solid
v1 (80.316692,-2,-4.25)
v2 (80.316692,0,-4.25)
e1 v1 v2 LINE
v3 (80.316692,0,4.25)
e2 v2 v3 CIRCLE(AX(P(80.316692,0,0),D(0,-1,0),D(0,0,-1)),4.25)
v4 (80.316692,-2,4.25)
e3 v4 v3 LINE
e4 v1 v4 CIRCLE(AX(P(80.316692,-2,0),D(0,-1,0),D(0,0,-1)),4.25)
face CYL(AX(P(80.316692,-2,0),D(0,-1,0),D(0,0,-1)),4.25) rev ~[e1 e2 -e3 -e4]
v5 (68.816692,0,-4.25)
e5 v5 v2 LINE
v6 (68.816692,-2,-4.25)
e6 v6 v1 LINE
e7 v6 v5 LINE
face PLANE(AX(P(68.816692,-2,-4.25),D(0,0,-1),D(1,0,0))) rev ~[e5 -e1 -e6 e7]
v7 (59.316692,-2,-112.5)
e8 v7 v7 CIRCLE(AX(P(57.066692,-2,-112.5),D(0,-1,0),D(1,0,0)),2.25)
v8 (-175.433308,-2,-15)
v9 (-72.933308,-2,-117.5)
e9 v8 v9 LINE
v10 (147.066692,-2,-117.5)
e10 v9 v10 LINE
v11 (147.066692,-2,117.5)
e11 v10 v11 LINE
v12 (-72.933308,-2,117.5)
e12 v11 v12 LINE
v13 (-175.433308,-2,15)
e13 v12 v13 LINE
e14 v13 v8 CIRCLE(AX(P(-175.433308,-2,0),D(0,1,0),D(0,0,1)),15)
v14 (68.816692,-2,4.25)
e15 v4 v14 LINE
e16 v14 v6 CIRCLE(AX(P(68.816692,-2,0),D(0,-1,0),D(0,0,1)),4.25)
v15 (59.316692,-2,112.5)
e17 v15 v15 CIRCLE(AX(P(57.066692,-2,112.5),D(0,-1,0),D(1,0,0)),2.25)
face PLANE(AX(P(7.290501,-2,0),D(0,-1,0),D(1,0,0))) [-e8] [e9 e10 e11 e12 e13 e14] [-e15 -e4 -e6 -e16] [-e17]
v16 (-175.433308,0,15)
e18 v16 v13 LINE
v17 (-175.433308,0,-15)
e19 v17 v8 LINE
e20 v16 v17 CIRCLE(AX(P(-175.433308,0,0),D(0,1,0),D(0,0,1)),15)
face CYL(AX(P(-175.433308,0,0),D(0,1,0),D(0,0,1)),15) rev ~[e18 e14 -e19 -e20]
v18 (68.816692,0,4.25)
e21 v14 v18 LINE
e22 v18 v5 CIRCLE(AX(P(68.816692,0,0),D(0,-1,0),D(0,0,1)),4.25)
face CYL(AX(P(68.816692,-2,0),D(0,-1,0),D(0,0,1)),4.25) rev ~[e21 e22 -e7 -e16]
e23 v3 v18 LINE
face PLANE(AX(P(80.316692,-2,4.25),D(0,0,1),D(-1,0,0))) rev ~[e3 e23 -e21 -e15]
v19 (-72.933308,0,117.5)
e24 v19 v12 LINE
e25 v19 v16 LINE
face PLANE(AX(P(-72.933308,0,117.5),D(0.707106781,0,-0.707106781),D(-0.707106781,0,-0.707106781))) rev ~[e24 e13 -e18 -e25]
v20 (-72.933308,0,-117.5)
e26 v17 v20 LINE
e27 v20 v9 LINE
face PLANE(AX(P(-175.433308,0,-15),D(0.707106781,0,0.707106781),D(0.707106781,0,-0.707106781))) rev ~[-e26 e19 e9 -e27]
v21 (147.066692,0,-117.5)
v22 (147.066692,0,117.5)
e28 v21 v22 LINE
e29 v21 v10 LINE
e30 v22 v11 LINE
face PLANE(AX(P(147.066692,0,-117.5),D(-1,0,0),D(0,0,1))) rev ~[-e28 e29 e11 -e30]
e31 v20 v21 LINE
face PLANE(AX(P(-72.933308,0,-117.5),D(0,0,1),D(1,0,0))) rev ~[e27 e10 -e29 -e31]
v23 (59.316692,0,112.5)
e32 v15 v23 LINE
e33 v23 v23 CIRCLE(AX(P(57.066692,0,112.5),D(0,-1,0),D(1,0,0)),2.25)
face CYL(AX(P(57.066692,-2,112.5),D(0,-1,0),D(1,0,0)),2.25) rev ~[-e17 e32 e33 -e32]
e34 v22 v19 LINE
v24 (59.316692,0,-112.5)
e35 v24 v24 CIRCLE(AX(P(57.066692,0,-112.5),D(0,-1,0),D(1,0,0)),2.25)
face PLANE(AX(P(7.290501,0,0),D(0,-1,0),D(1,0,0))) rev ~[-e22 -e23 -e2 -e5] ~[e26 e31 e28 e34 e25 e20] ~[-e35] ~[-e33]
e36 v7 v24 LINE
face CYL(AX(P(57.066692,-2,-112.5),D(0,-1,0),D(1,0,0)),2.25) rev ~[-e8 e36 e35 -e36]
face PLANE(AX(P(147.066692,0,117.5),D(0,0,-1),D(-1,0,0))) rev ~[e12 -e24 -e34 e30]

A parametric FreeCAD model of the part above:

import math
import FreeCAD as App
import Part
import Sketcher
Q = App.Units.Quantity

doc = App.newDocument("Part")
body = doc.addObject("PartDesign::Body", "Body")

# Sketch on XZ plane
sketch1 = body.newObject("Sketcher::SketchObject", "Sketch")
sketch1.AttachmentSupport = (doc.getObject("XZ_Plane"), [""])
sketch1.MapMode = "FlatFace"
sketch1.addGeometry([
    Part.LineSegment(App.Vector(-72.933308, -117.5, 0), App.Vector(147.066692, -117.5, 0)),  # 0
    Part.LineSegment(App.Vector(147.066692, -117.5, 0), App.Vector(147.066692, 117.5, 0)),  # 1
    Part.LineSegment(App.Vector(147.066692, 117.5, 0), App.Vector(-72.933308, 117.5, 0)),  # 2
    Part.LineSegment(App.Vector(-72.933308, 117.5, 0), App.Vector(-175.433308, 15, 0)),  # 3
    Part.ArcOfCircle(Part.Circle(App.Vector(-175.433308, 0, 0), App.Vector(0, 0, 1), 15), math.radians(-90), math.radians(90)),  # 4
    Part.LineSegment(App.Vector(-175.433308, -15, 0), App.Vector(-72.933308, -117.5, 0)),  # 5
], False)
sketch1.addConstraint([
    Sketcher.Constraint("Coincident", 0, 2, 1, 1),
    Sketcher.Constraint("Coincident", 1, 2, 2, 1),
    Sketcher.Constraint("Coincident", 2, 2, 3, 1),
    Sketcher.Constraint("Coincident", 3, 2, 4, 2),
    Sketcher.Constraint("Coincident", 4, 1, 5, 1),
    Sketcher.Constraint("Coincident", 5, 2, 0, 1),
    Sketcher.Constraint("Horizontal", 0),
    Sketcher.Constraint("Vertical", 1),
    Sketcher.Constraint("Horizontal", 2),
    Sketcher.Constraint("Symmetric", 3, 2, 4, 1, -1),
    Sketcher.Constraint("Symmetric", 2, 2, 5, 2, -1),
    Sketcher.Constraint("Perpendicular", 3, 5),
    Sketcher.Constraint("Vertical", 4, 3, 3, 2),
    Sketcher.Constraint("Radius", 4, Q("15 mm")),
    Sketcher.Constraint("DistanceX", 0, 1, 0, 2, Q("220 mm")),
    Sketcher.Constraint("DistanceY", 1, 1, 1, 2, Q("235 mm")),
    Sketcher.Constraint("DistanceX", 4, 3, -1, 1, Q("175.433308 mm")),
])
pad1 = body.newObject("PartDesign::Pad", "Pad")
pad1.Profile = sketch1
pad1.Length = 2

# Sketch on XZ plane
sketch2 = body.newObject("Sketcher::SketchObject", "Sketch001")
sketch2.AttachmentSupport = (doc.getObject("XZ_Plane"), [""])
sketch2.MapMode = "FlatFace"
sketch2.AttachmentOffset = App.Placement(App.Vector(0, 0, 2), App.Rotation())
sketch2.addGeometry([
    Part.LineSegment(App.Vector(68.816692, -4.25, 0), App.Vector(80.316692, -4.25, 0)),  # 0
    Part.ArcOfCircle(Part.Circle(App.Vector(80.316692, 0, 0), App.Vector(0, 0, 1), 4.25), math.radians(-90), math.radians(90)),  # 1
    Part.LineSegment(App.Vector(80.316692, 4.25, 0), App.Vector(68.816692, 4.25, 0)),  # 2
    Part.ArcOfCircle(Part.Circle(App.Vector(68.816692, 0, 0), App.Vector(0, 0, 1), 4.25), math.radians(90), math.radians(270)),  # 3
    Part.Circle(App.Vector(57.066692, -112.5, 0), App.Vector(0, 0, 1), 2.25),  # 4
    Part.Circle(App.Vector(57.066692, 112.5, 0), App.Vector(0, 0, 1), 2.25),  # 5
], False)
sketch2.addConstraint([
    Sketcher.Constraint("Tangent", 0, 2, 1, 1),
    Sketcher.Constraint("Tangent", 1, 2, 2, 1),
    Sketcher.Constraint("Tangent", 2, 2, 3, 1),
    Sketcher.Constraint("Tangent", 3, 2, 0, 1),
    Sketcher.Constraint("Horizontal", 0),
    Sketcher.Constraint("Horizontal", 2),
    Sketcher.Constraint("Equal", 4, 5),
    Sketcher.Constraint("Symmetric", 4, 3, 5, 3, -1),
    Sketcher.Constraint("PointOnObject", 1, 3, -1),
    Sketcher.Constraint("Diameter", 4, Q("4.5 mm")),
    Sketcher.Constraint("Radius", 1, Q("4.25 mm")),
    Sketcher.Constraint("DistanceX", 0, 1, 0, 2, Q("11.5 mm")),
    Sketcher.Constraint("DistanceY", 4, 3, 5, 3, Q("225 mm")),
    Sketcher.Constraint("DistanceX", 4, 3, 3, 3, Q("11.75 mm")),
    Sketcher.Constraint("DistanceX", -1, 1, 1, 3, Q("80.316692 mm")),
])
pocket1 = body.newObject("PartDesign::Pocket", "Pocket")
pocket1.Profile = sketch2
pocket1.Type = "ThroughAll"

doc.recompute()
